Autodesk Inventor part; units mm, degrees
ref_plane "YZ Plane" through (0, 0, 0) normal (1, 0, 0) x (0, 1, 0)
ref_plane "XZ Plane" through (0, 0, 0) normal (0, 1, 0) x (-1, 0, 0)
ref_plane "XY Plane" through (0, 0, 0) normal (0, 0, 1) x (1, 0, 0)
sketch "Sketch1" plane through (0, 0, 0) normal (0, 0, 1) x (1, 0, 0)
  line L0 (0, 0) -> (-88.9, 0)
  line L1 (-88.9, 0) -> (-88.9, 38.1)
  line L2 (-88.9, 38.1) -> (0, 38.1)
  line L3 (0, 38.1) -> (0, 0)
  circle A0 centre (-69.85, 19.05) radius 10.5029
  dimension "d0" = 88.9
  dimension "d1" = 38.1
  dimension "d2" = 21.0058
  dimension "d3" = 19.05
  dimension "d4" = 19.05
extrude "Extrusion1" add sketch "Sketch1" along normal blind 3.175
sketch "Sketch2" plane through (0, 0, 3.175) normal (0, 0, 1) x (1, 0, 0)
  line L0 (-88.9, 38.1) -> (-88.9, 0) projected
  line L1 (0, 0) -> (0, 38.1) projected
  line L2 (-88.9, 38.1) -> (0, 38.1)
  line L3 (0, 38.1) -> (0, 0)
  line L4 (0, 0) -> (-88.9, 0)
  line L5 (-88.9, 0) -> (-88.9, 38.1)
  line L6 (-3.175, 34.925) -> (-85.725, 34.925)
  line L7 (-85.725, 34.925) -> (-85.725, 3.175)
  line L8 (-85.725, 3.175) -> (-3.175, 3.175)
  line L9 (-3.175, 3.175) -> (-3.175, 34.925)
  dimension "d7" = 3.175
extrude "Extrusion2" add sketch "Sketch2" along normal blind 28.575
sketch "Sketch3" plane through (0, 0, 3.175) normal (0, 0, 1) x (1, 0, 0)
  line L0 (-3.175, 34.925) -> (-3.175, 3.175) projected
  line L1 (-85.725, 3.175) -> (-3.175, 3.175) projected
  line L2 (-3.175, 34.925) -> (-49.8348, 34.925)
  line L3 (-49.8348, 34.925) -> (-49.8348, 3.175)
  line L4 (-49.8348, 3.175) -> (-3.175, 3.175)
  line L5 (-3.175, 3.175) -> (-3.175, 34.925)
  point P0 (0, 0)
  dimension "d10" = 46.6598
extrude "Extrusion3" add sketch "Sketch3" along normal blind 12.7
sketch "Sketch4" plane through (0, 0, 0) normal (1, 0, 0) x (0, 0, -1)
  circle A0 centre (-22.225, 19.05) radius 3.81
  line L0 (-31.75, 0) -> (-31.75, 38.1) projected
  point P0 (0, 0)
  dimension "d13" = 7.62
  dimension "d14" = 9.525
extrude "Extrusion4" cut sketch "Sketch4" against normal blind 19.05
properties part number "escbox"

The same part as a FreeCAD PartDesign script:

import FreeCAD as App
import Part
import Sketcher
Q = App.Units.Quantity

doc = App.newDocument("Part")
body = doc.addObject("PartDesign::Body", "Body")

# Sketch on XY plane
sketch1 = doc.addObject("Sketcher::SketchObject", "Sketch")
body.addObject(sketch1)
sketch1.AttachmentSupport = (doc.XY_Plane, [""])
sketch1.MapMode = "FlatFace"
sketch1.addGeometry(Part.LineSegment(App.Vector(-89, 0, 0), App.Vector(0, 0, 0)), False)
sketch1.addGeometry(Part.LineSegment(App.Vector(0, 0, 0), App.Vector(0, 38, 0)), False)
sketch1.addGeometry(Part.LineSegment(App.Vector(0, 38, 0), App.Vector(-89, 38, 0)), False)
sketch1.addGeometry(Part.LineSegment(App.Vector(-89, 38, 0), App.Vector(-89, 0, 0)), False)
sketch1.addGeometry(Part.Circle(App.Vector(-70, 19, 0), App.Vector(0, 0, 1), 11), False)
sketch1.addConstraint(Sketcher.Constraint("Coincident", 0, 2, 1, 1))
sketch1.addConstraint(Sketcher.Constraint("Coincident", 1, 2, 2, 1))
sketch1.addConstraint(Sketcher.Constraint("Coincident", 2, 2, 3, 1))
sketch1.addConstraint(Sketcher.Constraint("Coincident", 3, 2, 0, 1))
sketch1.addConstraint(Sketcher.Constraint("Horizontal", 0))
sketch1.addConstraint(Sketcher.Constraint("Vertical", 1))
sketch1.addConstraint(Sketcher.Constraint("Horizontal", 2))
sketch1.addConstraint(Sketcher.Constraint("Vertical", 3))
sketch1.addConstraint(Sketcher.Constraint("Coincident", 0, 2, -1, 1))
sketch1.addConstraint(Sketcher.Constraint("Diameter", 4, Q("0.827 in")))
sketch1.addConstraint(Sketcher.Constraint("DistanceX", 0, 1, 0, 2, Q("3.5 in")))
sketch1.addConstraint(Sketcher.Constraint("DistanceY", 1, 1, 1, 2, Q("1.5 in")))
sketch1.addConstraint(Sketcher.Constraint("DistanceY", -1, 1, 4, 3, Q("0.75 in")))
sketch1.addConstraint(Sketcher.Constraint("DistanceX", 2, 2, 4, 3, Q("0.75 in")))
pad1 = doc.addObject("PartDesign::Pad", "Pad")
body.addObject(pad1)
pad1.Profile = sketch1
pad1.Length = Q("0.125 in")

# Sketch on XY plane
sketch2 = doc.addObject("Sketcher::SketchObject", "Sketch001")
body.addObject(sketch2)
sketch2.AttachmentSupport = (doc.XY_Plane, [""])
sketch2.MapMode = "FlatFace"
sketch2.AttachmentOffset = App.Placement(App.Vector(0, 0, 0.125 * 25.4), App.Rotation())
sketch2.addGeometry(Part.LineSegment(App.Vector(0, 38, 0), App.Vector(-89, 38, 0)), False)
sketch2.addGeometry(Part.LineSegment(App.Vector(-89, 38, 0), App.Vector(-89, 0, 0)), False)
sketch2.addGeometry(Part.LineSegment(App.Vector(-89, 0, 0), App.Vector(0, 0, 0)), False)
sketch2.addGeometry(Part.LineSegment(App.Vector(0, 0, 0), App.Vector(0, 38, 0)), False)
sketch2.addGeometry(Part.LineSegment(App.Vector(-86, 35, 0), App.Vector(-3, 35, 0)), False)
sketch2.addGeometry(Part.LineSegment(App.Vector(-3, 35, 0), App.Vector(-3, 3, 0)), False)
sketch2.addGeometry(Part.LineSegment(App.Vector(-3, 3, 0), App.Vector(-86, 3, 0)), False)
sketch2.addGeometry(Part.LineSegment(App.Vector(-86, 3, 0), App.Vector(-86, 35, 0)), False)
sketch2.addConstraint(Sketcher.Constraint("Coincident", 0, 2, 1, 1))
sketch2.addConstraint(Sketcher.Constraint("Coincident", 1, 2, 2, 1))
sketch2.addConstraint(Sketcher.Constraint("Coincident", 2, 2, 3, 1))
sketch2.addConstraint(Sketcher.Constraint("Coincident", 3, 2, 0, 1))
sketch2.addConstraint(Sketcher.Constraint("Coincident", 4, 2, 5, 1))
sketch2.addConstraint(Sketcher.Constraint("Coincident", 5, 2, 6, 1))
sketch2.addConstraint(Sketcher.Constraint("Coincident", 6, 2, 7, 1))
sketch2.addConstraint(Sketcher.Constraint("Coincident", 7, 2, 4, 1))
sketch2.addConstraint(Sketcher.Constraint("Horizontal", 0))
sketch2.addConstraint(Sketcher.Constraint("Vertical", 1))
sketch2.addConstraint(Sketcher.Constraint("Horizontal", 2))
sketch2.addConstraint(Sketcher.Constraint("Vertical", 3))
sketch2.addConstraint(Sketcher.Constraint("Horizontal", 4))
sketch2.addConstraint(Sketcher.Constraint("Vertical", 5))
sketch2.addConstraint(Sketcher.Constraint("Horizontal", 6))
sketch2.addConstraint(Sketcher.Constraint("Vertical", 7))
sketch2.addConstraint(Sketcher.Constraint("Coincident", 2, 2, -1, 1))
sketch2.addConstraint(Sketcher.Constraint("DistanceX", 0, 2, 0, 1, Q("3.5 in")))
sketch2.addConstraint(Sketcher.Constraint("DistanceY", 1, 2, 1, 1, Q("1.5 in")))
sketch2.addConstraint(Sketcher.Constraint("DistanceX", 4, 2, -1, 1, Q("0.125 in")))
sketch2.addConstraint(Sketcher.Constraint("DistanceY", -1, 1, 5, 2, Q("0.125 in")))
sketch2.addConstraint(Sketcher.Constraint("DistanceY", 4, 2, 3, 2, Q("0.125 in")))
sketch2.addConstraint(Sketcher.Constraint("DistanceX", 1, 2, 6, 2, Q("0.125 in")))
pad2 = doc.addObject("PartDesign::Pad", "Pad001")
body.addObject(pad2)
pad2.Profile = sketch2
pad2.Length = Q("1.125 in")

# Sketch on XY plane
sketch3 = doc.addObject("Sketcher::SketchObject", "Sketch002")
body.addObject(sketch3)
sketch3.AttachmentSupport = (doc.XY_Plane, [""])
sketch3.MapMode = "FlatFace"
sketch3.AttachmentOffset = App.Placement(App.Vector(0, 0, 0.125 * 25.4), App.Rotation())
sketch3.addGeometry(Part.LineSegment(App.Vector(-3, 3, 0), App.Vector(-3, 35, 0)), False)
sketch3.addGeometry(Part.LineSegment(App.Vector(-3, 35, 0), App.Vector(-50, 35, 0)), False)
sketch3.addGeometry(Part.LineSegment(App.Vector(-50, 35, 0), App.Vector(-50, 3, 0)), False)
sketch3.addGeometry(Part.LineSegment(App.Vector(-50, 3, 0), App.Vector(-3, 3, 0)), False)
sketch3.addConstraint(Sketcher.Constraint("Coincident", 0, 2, 1, 1))
sketch3.addConstraint(Sketcher.Constraint("Coincident", 1, 2, 2, 1))
sketch3.addConstraint(Sketcher.Constraint("Coincident", 2, 2, 3, 1))
sketch3.addConstraint(Sketcher.Constraint("Coincident", 3, 2, 0, 1))
sketch3.addConstraint(Sketcher.Constraint("Vertical", 0))
sketch3.addConstraint(Sketcher.Constraint("Horizontal", 1))
sketch3.addConstraint(Sketcher.Constraint("Vertical", 2))
sketch3.addConstraint(Sketcher.Constraint("Horizontal", 3))
sketch3.addConstraint(Sketcher.Constraint("DistanceX", 1, 2, 1, 1, Q("1.837 in")))
sketch3.addConstraint(Sketcher.Constraint("DistanceY", 0, 1, 0, 2, Q("1.25 in")))
sketch3.addConstraint(Sketcher.Constraint("DistanceX", 0, 2, -1, 1, Q("0.125 in")))
sketch3.addConstraint(Sketcher.Constraint("DistanceY", -1, 1, 0, 2, Q("1.375 in")))
pad3 = doc.addObject("PartDesign::Pad", "Pad002")
body.addObject(pad3)
pad3.Profile = sketch3
pad3.Length = Q("0.5 in")

# Sketch on YZ plane
sketch4 = doc.addObject("Sketcher::SketchObject", "Sketch003")
body.addObject(sketch4)
sketch4.AttachmentSupport = (doc.YZ_Plane, [""])
sketch4.MapMode = "FlatFace"
sketch4.addGeometry(Part.Circle(App.Vector(19.1, 22.2, 0), App.Vector(0, 0, 1), 3.8), False)
sketch4.addConstraint(Sketcher.Constraint("Diameter", 0, Q("0.3 in")))
sketch4.addConstraint(Sketcher.Constraint("DistanceX", -1, 1, 0, 3, Q("0.75 in")))
sketch4.addConstraint(Sketcher.Constraint("DistanceY", -1, 1, 0, 3, Q("0.875 in")))
pocket1 = doc.addObject("PartDesign::Pocket", "Pocket")
body.addObject(pocket1)
pocket1.Profile = sketch4
pocket1.Length = Q("0.75 in")

doc.recompute()
